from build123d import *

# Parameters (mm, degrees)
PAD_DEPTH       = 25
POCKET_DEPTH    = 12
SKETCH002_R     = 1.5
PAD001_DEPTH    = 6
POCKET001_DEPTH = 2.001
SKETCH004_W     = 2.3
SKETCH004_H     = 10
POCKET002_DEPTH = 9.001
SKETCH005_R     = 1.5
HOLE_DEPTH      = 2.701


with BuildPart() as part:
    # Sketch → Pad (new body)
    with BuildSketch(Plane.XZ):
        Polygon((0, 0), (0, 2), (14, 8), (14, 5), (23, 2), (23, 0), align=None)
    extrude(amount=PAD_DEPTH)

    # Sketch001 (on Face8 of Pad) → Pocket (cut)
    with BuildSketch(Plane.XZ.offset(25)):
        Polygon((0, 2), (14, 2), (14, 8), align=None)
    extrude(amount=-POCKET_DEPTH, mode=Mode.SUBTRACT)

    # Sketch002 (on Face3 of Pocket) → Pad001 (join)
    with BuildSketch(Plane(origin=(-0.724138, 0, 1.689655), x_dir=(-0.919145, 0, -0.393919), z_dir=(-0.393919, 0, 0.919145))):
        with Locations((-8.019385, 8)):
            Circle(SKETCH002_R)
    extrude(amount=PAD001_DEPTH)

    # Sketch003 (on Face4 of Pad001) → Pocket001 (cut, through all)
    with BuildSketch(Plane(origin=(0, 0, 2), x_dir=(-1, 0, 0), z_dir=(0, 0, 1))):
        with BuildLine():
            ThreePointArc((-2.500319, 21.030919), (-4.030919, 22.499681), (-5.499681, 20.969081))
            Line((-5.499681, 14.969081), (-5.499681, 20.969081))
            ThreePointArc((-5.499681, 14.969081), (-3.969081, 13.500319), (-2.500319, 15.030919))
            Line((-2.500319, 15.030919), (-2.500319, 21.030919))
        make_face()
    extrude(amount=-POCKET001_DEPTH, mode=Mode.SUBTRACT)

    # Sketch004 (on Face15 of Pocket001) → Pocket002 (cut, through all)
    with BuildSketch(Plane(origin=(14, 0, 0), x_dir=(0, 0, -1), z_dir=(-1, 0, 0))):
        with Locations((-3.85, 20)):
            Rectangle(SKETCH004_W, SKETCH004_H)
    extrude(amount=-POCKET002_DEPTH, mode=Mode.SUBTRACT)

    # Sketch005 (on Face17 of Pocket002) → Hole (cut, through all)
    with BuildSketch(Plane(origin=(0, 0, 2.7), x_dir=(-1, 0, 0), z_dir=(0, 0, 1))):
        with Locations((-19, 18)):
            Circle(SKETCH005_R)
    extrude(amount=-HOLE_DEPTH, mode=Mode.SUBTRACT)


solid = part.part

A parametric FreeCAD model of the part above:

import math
import FreeCAD as App
import Part
import Sketcher

doc = App.newDocument("Part")
params = doc.addObject("Spreadsheet::Sheet", "Params")
for row, (alias, value) in enumerate([
    ("sketch1_width", "23 mm"),
    ("sketch1_height", "2 mm"),
    ("sketch1_height2", "3 mm"),
    ("pad1_length", "25 mm"),
    ("sketch2_width", "14 mm"),
    ("sketch2_height", "6 mm"),
    ("pocket1_length", "12 mm"),
    ("sketch3_diameter", "3 mm"),
    ("pad2_length", "6 mm"),
    ("sketch4_radius", "1.5 mm"),
    ("sketch4_height", "6 mm"),
    ("sketch5_width", "10 mm"),
    ("sketch5_height", "2.3 mm"),
    ("sketch6_diameter", "3 mm"),
], start=1):
    params.set(f"A{row}", alias)
    params.set(f"B{row}", "=" + value)
    params.setAlias(f"B{row}", alias)

body = doc.addObject("PartDesign::Body", "Body")

# Sketch on XZ plane
sketch1 = body.newObject("Sketcher::SketchObject", "Sketch")
sketch1.AttachmentSupport = (doc.getObject("XZ_Plane"), [""])
sketch1.MapMode = "FlatFace"
sketch1.addGeometry(Part.LineSegment(App.Vector(0, 2, 0), App.Vector(0, 0, 0)), False)
sketch1.addGeometry(Part.LineSegment(App.Vector(0, 0, 0), App.Vector(23, 0, 0)), False)
sketch1.addGeometry(Part.LineSegment(App.Vector(23, 0, 0), App.Vector(23, 2, 0)), False)
sketch1.addGeometry(Part.LineSegment(App.Vector(23, 2, 0), App.Vector(14, 5, 0)), False)
sketch1.addGeometry(Part.LineSegment(App.Vector(14, 5, 0), App.Vector(14, 8, 0)), False)
sketch1.addGeometry(Part.LineSegment(App.Vector(14, 8, 0), App.Vector(0, 2, 0)), False)
sketch1.addConstraint(Sketcher.Constraint("Coincident", 0, 2, 1, 1))
sketch1.addConstraint(Sketcher.Constraint("Coincident", 1, 2, 2, 1))
sketch1.addConstraint(Sketcher.Constraint("Coincident", 2, 2, 3, 1))
sketch1.addConstraint(Sketcher.Constraint("Coincident", 3, 2, 4, 1))
sketch1.addConstraint(Sketcher.Constraint("Coincident", 4, 2, 5, 1))
sketch1.addConstraint(Sketcher.Constraint("Coincident", 5, 2, 0, 1))
sketch1.addConstraint(Sketcher.Constraint("Vertical", 0))
sketch1.addConstraint(Sketcher.Constraint("Horizontal", 1))
sketch1.addConstraint(Sketcher.Constraint("Vertical", 2))
sketch1.addConstraint(Sketcher.Constraint("Vertical", 4))
sketch1.addConstraint(Sketcher.Constraint("Coincident", 0, 2, -1, 1))
sketch1.addConstraint(Sketcher.Constraint("Horizontal", 2, 2, 5, 2))
sketch1.addConstraint(Sketcher.Constraint("DistanceX", 1, 1, 1, 2, 23.0))
sketch1.addConstraint(Sketcher.Constraint("DistanceY", 0, 2, 0, 1, 2.0))
sketch1.addConstraint(Sketcher.Constraint("DistanceY", 4, 1, 4, 2, 3.0))
sketch1.addConstraint(Sketcher.Constraint("DistanceX", -1, 1, 3, 2, 14.0))
sketch1.addConstraint(Sketcher.Constraint("DistanceY", -1, 1, 3, 2, 5.0))
sketch1.setExpression("Constraints[12]", "Params.sketch1_width")
sketch1.setExpression("Constraints[13]", "Params.sketch1_height")
sketch1.setExpression("Constraints[14]", "Params.sketch1_height2")
pad1 = body.newObject("PartDesign::Pad", "Pad")
pad1.Profile = sketch1
pad1.setExpression("Length", "Params.pad1_length")

# Sketch on XZ plane
sketch2 = body.newObject("Sketcher::SketchObject", "Sketch001")
sketch2.AttachmentSupport = (doc.getObject("XZ_Plane"), [""])
sketch2.MapMode = "FlatFace"
sketch2.AttachmentOffset = App.Placement(App.Vector(0, 0, 25), App.Rotation())
sketch2.addGeometry(Part.LineSegment(App.Vector(0, 2, 0), App.Vector(14, 2, 0)), False)
sketch2.addGeometry(Part.LineSegment(App.Vector(14, 2, 0), App.Vector(14, 8, 0)), False)
sketch2.addGeometry(Part.LineSegment(App.Vector(14, 8, 0), App.Vector(0, 2, 0)), False)
sketch2.addConstraint(Sketcher.Constraint("Coincident", 0, 2, 1, 1))
sketch2.addConstraint(Sketcher.Constraint("Coincident", 1, 2, 2, 1))
sketch2.addConstraint(Sketcher.Constraint("Coincident", 2, 2, 0, 1))
sketch2.addConstraint(Sketcher.Constraint("Horizontal", 0))
sketch2.addConstraint(Sketcher.Constraint("Vertical", 1))
sketch2.addConstraint(Sketcher.Constraint("PointOnObject", 2, 2, -2))
sketch2.addConstraint(Sketcher.Constraint("DistanceX", 0, 1, 0, 2, 14.0))
sketch2.addConstraint(Sketcher.Constraint("DistanceY", 1, 1, 1, 2, 6.0))
sketch2.addConstraint(Sketcher.Constraint("DistanceY", -1, 1, 0, 2, 2.0))
sketch2.setExpression("Constraints[6]", "Params.sketch2_width")
sketch2.setExpression("Constraints[7]", "Params.sketch2_height")
pocket1 = body.newObject("PartDesign::Pocket", "Pocket")
pocket1.Profile = sketch2
pocket1.setExpression("Length", "Params.pocket1_length")

# Sketch on an angled plane
sketch3 = body.newObject("Sketcher::SketchObject", "Sketch002")
sketch3.Placement = App.Placement(App.Vector(-0.724138, 0, 1.689655), App.Rotation(App.Vector(-0.919145133, 0, -0.393919057), App.Vector(0, -0.999999999, 0), App.Vector(-0.393919057, 0, 0.919145133), "ZXY"))
sketch3.addGeometry(Part.Circle(App.Vector(-8.019385, 8, 0), App.Vector(0, 0, 1), 1.5), False)
sketch3.addConstraint(Sketcher.Constraint("Diameter", 0, 3.0))
sketch3.addConstraint(Sketcher.Constraint("DistanceY", -1, 1, 0, 3, 8.0))
sketch3.addConstraint(Sketcher.Constraint("DistanceX", 0, 3, -1, 1, 8.019385))
sketch3.setExpression("Constraints[0]", "Params.sketch3_diameter")
pad2 = body.newObject("PartDesign::Pad", "Pad001")
pad2.Profile = sketch3
pad2.setExpression("Length", "Params.pad2_length")

# Sketch on XY plane
sketch4 = body.newObject("Sketcher::SketchObject", "Sketch003")
sketch4.AttachmentSupport = (doc.getObject("XY_Plane"), [""])
sketch4.MapMode = "FlatFace"
sketch4.AttachmentOffset = App.Placement(App.Vector(0, 0, 2), App.Rotation())
sketch4.addGeometry(Part.ArcOfCircle(Part.Circle(App.Vector(4, -21, 0), App.Vector(0, 0, 1), 1.5), math.radians(-178.818897), math.radians(1.181103)), False)
sketch4.addGeometry(Part.LineSegment(App.Vector(5.499681, -20.969081, 0), App.Vector(5.499681, -14.969081, 0)), False)
sketch4.addGeometry(Part.ArcOfCircle(Part.Circle(App.Vector(4, -15, 0), App.Vector(0, 0, 1), 1.5), math.radians(1.181103), math.radians(181.181103)), False)
sketch4.addGeometry(Part.LineSegment(App.Vector(2.500319, -15.030919, 0), App.Vector(2.500319, -21.030919, 0)), False)
sketch4.addConstraint(Sketcher.Constraint("Coincident", 0, 2, 1, 1))
sketch4.addConstraint(Sketcher.Constraint("Coincident", 1, 2, 2, 1))
sketch4.addConstraint(Sketcher.Constraint("Coincident", 2, 2, 3, 1))
sketch4.addConstraint(Sketcher.Constraint("Coincident", 3, 2, 0, 1))
sketch4.addConstraint(Sketcher.Constraint("Vertical", 1))
sketch4.addConstraint(Sketcher.Constraint("Vertical", 3))
sketch4.addConstraint(Sketcher.Constraint("Equal", 0, 2))
sketch4.addConstraint(Sketcher.Constraint("Vertical", 0, 3, 2, 3))
sketch4.addConstraint(Sketcher.Constraint("Radius", 0, 1.5))
sketch4.addConstraint(Sketcher.Constraint("DistanceY", 1, 1, 1, 2, 6.0))
sketch4.addConstraint(Sketcher.Constraint("DistanceX", -1, 1, 0, 3, 4.0))
sketch4.addConstraint(Sketcher.Constraint("DistanceY", 0, 3, -1, 1, 21.0))
sketch4.addConstraint(Sketcher.Constraint("DistanceX", -1, 1, 0, 2, 5.499681))
sketch4.addConstraint(Sketcher.Constraint("DistanceX", -1, 1, 2, 2, 2.500319))
sketch4.setExpression("Constraints[8]", "Params.sketch4_radius")
sketch4.setExpression("Constraints[9]", "Params.sketch4_height")
pocket2 = body.newObject("PartDesign::Pocket", "Pocket001")
pocket2.Profile = sketch4
pocket2.Type = "ThroughAll"

# Sketch on YZ plane
sketch5 = body.newObject("Sketcher::SketchObject", "Sketch004")
sketch5.AttachmentSupport = (doc.getObject("YZ_Plane"), [""])
sketch5.MapMode = "FlatFace"
sketch5.AttachmentOffset = App.Placement(App.Vector(0, 0, 14), App.Rotation())
sketch5.addGeometry(Part.LineSegment(App.Vector(-25, 5, 0), App.Vector(-15, 5, 0)), False)
sketch5.addGeometry(Part.LineSegment(App.Vector(-15, 5, 0), App.Vector(-15, 2.7, 0)), False)
sketch5.addGeometry(Part.LineSegment(App.Vector(-15, 2.7, 0), App.Vector(-25, 2.7, 0)), False)
sketch5.addGeometry(Part.LineSegment(App.Vector(-25, 2.7, 0), App.Vector(-25, 5, 0)), False)
sketch5.addConstraint(Sketcher.Constraint("Coincident", 0, 2, 1, 1))
sketch5.addConstraint(Sketcher.Constraint("Coincident", 1, 2, 2, 1))
sketch5.addConstraint(Sketcher.Constraint("Coincident", 2, 2, 3, 1))
sketch5.addConstraint(Sketcher.Constraint("Coincident", 3, 2, 0, 1))
sketch5.addConstraint(Sketcher.Constraint("Horizontal", 0))
sketch5.addConstraint(Sketcher.Constraint("Vertical", 1))
sketch5.addConstraint(Sketcher.Constraint("Horizontal", 2))
sketch5.addConstraint(Sketcher.Constraint("Vertical", 3))
sketch5.addConstraint(Sketcher.Constraint("DistanceX", 0, 1, 0, 2, 10.0))
sketch5.addConstraint(Sketcher.Constraint("DistanceY", 1, 2, 1, 1, 2.3))
sketch5.addConstraint(Sketcher.Constraint("DistanceX", 0, 2, -1, 1, 15.0))
sketch5.addConstraint(Sketcher.Constraint("DistanceY", -1, 1, 0, 2, 5.0))
sketch5.setExpression("Constraints[8]", "Params.sketch5_width")
sketch5.setExpression("Constraints[9]", "Params.sketch5_height")
pocket3 = body.newObject("PartDesign::Pocket", "Pocket002")
pocket3.Profile = sketch5
pocket3.Type = "ThroughAll"
pocket3.Reversed = True

# Sketch on XY plane
sketch6 = body.newObject("Sketcher::SketchObject", "Sketch005")
sketch6.AttachmentSupport = (doc.getObject("XY_Plane"), [""])
sketch6.MapMode = "FlatFace"
sketch6.AttachmentOffset = App.Placement(App.Vector(0, 0, 2.7), App.Rotation())
sketch6.addGeometry(Part.Circle(App.Vector(19, -18, 0), App.Vector(0, 0, 1), 1.5), False)
sketch6.addConstraint(Sketcher.Constraint("Diameter", 0, 3.0))
sketch6.addConstraint(Sketcher.Constraint("DistanceX", -1, 1, 0, 3, 19.0))
sketch6.addConstraint(Sketcher.Constraint("DistanceY", 0, 3, -1, 1, 18.0))
sketch6.setExpression("Constraints[0]", "Params.sketch6_diameter")
pocket4 = body.newObject("PartDesign::Pocket", "Pocket003")
pocket4.Profile = sketch6
pocket4.Type = "ThroughAll"

doc.recompute()
